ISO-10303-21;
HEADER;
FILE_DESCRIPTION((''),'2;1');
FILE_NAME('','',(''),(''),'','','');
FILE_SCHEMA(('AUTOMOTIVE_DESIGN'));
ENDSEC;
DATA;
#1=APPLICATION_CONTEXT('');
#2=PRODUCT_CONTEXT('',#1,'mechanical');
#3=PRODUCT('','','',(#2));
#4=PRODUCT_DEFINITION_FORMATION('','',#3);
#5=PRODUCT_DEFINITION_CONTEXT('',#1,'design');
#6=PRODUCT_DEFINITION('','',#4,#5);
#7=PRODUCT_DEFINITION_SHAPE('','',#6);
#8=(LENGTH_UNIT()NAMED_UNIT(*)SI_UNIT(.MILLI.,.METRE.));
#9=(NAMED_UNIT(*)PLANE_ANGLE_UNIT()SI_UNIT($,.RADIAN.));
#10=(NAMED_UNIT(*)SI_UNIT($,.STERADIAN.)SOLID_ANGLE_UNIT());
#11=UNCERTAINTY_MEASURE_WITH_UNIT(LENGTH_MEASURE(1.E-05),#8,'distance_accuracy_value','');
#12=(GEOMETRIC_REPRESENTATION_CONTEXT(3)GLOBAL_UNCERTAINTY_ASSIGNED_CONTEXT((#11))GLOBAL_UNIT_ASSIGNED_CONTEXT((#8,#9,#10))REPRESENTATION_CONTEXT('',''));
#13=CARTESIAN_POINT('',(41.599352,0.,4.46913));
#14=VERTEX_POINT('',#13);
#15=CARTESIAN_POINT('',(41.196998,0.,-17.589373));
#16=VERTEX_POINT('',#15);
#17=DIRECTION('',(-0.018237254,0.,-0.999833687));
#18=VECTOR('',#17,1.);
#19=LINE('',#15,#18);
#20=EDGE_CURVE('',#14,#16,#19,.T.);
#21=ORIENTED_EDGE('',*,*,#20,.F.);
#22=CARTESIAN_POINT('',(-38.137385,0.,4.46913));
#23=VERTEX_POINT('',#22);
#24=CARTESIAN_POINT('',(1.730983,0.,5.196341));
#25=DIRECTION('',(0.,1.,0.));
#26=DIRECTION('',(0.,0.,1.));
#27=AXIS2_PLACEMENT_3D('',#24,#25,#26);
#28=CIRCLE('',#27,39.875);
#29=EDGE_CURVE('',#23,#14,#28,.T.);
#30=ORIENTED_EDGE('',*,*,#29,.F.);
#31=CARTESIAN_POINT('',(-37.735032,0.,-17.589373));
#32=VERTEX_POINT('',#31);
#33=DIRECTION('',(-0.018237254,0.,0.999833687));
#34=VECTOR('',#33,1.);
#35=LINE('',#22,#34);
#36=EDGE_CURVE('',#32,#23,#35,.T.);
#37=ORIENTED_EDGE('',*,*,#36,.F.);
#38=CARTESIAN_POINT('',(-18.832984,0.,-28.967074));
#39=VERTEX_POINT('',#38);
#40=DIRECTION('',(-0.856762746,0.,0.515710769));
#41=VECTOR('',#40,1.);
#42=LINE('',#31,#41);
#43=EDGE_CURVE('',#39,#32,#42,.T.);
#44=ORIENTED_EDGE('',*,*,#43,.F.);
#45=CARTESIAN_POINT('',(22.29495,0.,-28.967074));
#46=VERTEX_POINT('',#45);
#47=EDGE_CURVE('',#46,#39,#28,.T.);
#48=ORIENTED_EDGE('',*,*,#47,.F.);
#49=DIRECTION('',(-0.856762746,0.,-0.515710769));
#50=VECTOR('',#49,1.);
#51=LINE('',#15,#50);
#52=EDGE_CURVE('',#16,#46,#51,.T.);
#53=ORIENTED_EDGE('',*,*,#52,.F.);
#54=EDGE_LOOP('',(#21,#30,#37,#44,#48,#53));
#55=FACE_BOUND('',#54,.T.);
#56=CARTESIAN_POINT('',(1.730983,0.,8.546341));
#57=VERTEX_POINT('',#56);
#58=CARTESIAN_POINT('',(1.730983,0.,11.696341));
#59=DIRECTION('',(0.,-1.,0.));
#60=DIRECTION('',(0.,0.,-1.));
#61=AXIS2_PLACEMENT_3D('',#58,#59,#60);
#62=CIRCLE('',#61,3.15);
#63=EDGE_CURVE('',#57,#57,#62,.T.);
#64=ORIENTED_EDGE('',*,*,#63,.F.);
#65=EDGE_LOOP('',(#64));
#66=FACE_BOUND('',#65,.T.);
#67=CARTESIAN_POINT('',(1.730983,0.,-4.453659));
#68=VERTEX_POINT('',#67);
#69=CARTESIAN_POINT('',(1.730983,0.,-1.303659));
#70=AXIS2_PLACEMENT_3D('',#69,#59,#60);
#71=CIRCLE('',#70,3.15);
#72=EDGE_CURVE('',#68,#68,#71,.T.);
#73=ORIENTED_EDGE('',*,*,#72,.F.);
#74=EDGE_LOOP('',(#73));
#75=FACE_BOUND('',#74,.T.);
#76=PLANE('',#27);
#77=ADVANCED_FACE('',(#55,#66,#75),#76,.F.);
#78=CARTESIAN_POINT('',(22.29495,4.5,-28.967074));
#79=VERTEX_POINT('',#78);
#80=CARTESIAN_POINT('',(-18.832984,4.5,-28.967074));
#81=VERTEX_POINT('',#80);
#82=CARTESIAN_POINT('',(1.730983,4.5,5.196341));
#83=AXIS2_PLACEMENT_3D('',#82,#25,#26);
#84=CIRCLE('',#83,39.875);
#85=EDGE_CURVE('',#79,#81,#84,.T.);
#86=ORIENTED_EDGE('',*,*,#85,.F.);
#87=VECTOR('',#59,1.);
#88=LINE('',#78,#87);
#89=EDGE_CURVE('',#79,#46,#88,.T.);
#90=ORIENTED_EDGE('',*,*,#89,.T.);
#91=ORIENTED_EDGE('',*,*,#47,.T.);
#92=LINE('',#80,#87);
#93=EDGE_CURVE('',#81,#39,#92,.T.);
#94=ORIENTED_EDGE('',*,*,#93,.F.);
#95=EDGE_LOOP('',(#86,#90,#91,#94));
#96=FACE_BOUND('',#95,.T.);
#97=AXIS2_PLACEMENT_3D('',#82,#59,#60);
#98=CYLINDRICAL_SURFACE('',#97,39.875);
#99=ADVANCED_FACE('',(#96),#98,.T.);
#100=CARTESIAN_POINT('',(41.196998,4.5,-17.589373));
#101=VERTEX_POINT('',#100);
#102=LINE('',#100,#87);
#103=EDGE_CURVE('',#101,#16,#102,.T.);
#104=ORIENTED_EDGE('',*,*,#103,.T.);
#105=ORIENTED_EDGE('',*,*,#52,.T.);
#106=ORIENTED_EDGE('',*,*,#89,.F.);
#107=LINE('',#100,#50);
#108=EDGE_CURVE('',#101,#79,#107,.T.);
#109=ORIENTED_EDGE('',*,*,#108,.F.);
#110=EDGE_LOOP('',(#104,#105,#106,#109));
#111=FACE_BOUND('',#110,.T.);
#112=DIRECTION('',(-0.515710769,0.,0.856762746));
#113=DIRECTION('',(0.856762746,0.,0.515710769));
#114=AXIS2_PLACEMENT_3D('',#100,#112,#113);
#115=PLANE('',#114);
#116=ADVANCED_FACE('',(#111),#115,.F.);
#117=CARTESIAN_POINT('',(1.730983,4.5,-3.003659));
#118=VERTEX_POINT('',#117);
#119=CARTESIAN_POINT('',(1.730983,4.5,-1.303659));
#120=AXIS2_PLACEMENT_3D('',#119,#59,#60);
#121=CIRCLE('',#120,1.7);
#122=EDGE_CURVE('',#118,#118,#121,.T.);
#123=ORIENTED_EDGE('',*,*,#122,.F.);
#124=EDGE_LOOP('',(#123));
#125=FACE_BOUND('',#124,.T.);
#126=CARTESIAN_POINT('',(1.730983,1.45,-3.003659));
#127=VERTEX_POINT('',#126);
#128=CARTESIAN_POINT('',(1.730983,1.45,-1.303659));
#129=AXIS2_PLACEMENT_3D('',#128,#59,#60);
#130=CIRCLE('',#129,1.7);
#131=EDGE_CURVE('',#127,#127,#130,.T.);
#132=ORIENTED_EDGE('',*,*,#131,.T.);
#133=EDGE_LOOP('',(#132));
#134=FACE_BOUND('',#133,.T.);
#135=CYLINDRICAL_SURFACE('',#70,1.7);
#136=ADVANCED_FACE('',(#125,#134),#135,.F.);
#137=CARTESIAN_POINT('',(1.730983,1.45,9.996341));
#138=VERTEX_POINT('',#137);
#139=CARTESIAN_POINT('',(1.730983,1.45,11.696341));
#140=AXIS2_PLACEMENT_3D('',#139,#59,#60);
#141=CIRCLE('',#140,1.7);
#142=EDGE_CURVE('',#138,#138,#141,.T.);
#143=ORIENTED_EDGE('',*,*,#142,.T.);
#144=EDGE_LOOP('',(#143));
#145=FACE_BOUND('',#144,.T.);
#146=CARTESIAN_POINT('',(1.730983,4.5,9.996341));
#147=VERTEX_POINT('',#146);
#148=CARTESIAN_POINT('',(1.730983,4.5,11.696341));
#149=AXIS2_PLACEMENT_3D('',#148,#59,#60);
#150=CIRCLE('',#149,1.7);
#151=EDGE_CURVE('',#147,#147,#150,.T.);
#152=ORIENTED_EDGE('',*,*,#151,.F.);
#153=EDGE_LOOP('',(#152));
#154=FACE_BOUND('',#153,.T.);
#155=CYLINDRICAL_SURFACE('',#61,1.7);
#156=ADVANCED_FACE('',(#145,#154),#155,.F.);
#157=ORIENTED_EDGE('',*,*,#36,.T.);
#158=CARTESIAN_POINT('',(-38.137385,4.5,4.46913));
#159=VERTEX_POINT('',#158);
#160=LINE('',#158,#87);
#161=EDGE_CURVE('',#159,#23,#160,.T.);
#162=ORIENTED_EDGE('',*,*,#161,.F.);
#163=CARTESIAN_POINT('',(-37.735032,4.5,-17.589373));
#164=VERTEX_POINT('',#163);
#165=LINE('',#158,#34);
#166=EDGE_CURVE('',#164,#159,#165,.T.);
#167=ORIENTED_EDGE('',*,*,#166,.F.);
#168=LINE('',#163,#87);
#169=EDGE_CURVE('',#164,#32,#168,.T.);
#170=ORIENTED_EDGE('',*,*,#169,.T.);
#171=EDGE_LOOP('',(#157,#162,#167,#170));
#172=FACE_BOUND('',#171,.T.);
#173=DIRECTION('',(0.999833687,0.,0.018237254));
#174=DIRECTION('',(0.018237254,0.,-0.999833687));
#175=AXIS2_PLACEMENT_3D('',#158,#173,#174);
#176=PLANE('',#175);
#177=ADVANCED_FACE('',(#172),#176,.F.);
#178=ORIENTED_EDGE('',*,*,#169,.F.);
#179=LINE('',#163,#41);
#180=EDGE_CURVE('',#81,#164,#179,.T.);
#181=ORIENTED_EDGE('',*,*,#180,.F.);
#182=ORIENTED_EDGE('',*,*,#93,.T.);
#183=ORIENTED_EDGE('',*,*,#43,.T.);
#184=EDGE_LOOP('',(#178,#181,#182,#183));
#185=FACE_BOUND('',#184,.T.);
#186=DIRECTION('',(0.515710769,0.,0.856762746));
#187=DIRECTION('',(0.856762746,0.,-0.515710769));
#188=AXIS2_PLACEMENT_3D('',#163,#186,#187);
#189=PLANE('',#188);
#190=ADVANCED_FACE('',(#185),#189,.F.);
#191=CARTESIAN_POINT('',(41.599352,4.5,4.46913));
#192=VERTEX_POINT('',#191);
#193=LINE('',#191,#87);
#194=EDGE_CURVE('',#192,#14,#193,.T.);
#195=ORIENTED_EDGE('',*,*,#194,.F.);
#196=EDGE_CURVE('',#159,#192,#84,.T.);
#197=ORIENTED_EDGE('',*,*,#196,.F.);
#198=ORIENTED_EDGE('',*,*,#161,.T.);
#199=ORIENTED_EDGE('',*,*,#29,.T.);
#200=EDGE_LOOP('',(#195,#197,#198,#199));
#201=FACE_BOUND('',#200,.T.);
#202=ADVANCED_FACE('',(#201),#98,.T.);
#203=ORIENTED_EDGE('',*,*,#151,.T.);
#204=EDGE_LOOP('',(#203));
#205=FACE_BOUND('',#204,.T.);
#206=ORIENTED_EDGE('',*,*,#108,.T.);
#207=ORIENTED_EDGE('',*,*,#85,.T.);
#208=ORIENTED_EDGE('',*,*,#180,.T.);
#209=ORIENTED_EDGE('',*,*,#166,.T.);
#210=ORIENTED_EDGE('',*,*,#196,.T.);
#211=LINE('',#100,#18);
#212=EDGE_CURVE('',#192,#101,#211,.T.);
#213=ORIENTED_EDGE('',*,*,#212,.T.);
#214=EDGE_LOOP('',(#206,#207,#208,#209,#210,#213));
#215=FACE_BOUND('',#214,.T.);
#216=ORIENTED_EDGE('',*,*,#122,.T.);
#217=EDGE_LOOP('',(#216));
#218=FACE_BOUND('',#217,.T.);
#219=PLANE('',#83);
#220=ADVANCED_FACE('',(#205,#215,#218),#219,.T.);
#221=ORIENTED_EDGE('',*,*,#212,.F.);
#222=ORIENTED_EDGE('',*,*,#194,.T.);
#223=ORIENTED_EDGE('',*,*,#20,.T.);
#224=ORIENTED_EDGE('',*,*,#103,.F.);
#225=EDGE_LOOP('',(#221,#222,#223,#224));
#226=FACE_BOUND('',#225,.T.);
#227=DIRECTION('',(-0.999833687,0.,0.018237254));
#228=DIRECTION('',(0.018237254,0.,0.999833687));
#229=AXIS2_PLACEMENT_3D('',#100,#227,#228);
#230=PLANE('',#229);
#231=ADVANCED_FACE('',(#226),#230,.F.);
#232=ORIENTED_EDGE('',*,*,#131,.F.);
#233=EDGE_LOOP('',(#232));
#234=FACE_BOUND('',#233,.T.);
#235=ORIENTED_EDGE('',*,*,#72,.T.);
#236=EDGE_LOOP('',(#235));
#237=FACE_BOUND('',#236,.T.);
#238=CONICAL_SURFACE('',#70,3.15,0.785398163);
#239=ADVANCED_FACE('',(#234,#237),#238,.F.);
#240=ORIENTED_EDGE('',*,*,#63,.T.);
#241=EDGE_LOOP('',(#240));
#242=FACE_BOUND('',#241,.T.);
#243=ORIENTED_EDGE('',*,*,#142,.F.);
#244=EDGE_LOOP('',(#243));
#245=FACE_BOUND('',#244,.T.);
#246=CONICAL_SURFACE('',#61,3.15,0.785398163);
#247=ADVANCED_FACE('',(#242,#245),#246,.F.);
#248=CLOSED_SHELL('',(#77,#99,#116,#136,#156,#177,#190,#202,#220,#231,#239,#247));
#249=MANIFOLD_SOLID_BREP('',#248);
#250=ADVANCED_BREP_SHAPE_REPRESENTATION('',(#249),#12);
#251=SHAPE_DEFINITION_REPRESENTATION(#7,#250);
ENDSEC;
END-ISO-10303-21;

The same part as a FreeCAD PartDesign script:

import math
import FreeCAD as App
import Part
import Sketcher
from FreeCAD import Vector

doc = App.newDocument("Part")
body = doc.addObject("PartDesign::Body", "Body")

# Sketch on XZ plane
sketch1 = doc.addObject("Sketcher::SketchObject", "Sketch")
body.addObject(sketch1)
sketch1.AttachmentSupport = (doc.XZ_Plane, [""])
sketch1.MapMode = "FlatFace"
sketch1.addGeometry([
    Part.LineSegment(Vector(-19, -29, 0), Vector(-38, -18, 0)),  # 0
    Part.LineSegment(Vector(-38, -18, 0), Vector(-38, 4, 0)),  # 1
    Part.ArcOfCircle(Part.Circle(Vector(2, 5, 0), Vector(0, 0, 1), 40), math.radians(-1), math.radians(181)),  # 2
    Part.LineSegment(Vector(42, 4, 0), Vector(41, -18, 0)),  # 3
    Part.LineSegment(Vector(41, -18, 0), Vector(22, -29, 0)),  # 4
    Part.ArcOfCircle(Part.Circle(Vector(2, 5, 0), Vector(0, 0, 1), 40), math.radians(-121), math.radians(-59)),  # 5
], False)
sketch1.addConstraint([
    Sketcher.Constraint("Coincident", 0, 2, 1, 1),
    Sketcher.Constraint("Tangent", 1, 2, 2, 2),
    Sketcher.Constraint("Tangent", 2, 1, 3, 1),
    Sketcher.Constraint("Coincident", 3, 2, 4, 1),
    Sketcher.Constraint("Tangent", 4, 2, 5, 2),
    Sketcher.Constraint("Tangent", 5, 1, 0, 1),
    Sketcher.Constraint("Coincident", 5, 3, 2, 3),
    Sketcher.Constraint("Equal", 2, 5),
    Sketcher.Constraint("Horizontal", 1, 2, 2, 1),
    Sketcher.Constraint("Horizontal", 0, 2, 3, 2),
    Sketcher.Constraint("Radius", 2, 39.875),
    Sketcher.Constraint("DistanceX", -1, 1, 3, 2, 41.196998),
    Sketcher.Constraint("DistanceY", 4, 2, 3, 2, 11.3777),
    Sketcher.Constraint("DistanceX", 4, 2, 2, 1, 19.304401),
    Sketcher.Constraint("DistanceY", -1, 1, 2, 3, 5.196341),
])
pad1 = doc.addObject("PartDesign::Pad", "Pad")
body.addObject(pad1)
pad1.Profile = sketch1
pad1.Length = 4.5
pad1.Reversed = True

# Sketch on XZ plane
sketch2 = doc.addObject("Sketcher::SketchObject", "Sketch001")
body.addObject(sketch2)
sketch2.AttachmentSupport = (doc.XZ_Plane, [""])
sketch2.MapMode = "FlatFace"
sketch2.addGeometry([
    Part.Circle(Vector(1.7, -1.3, 0), Vector(0, 0, 1), 1.7),
    Part.Circle(Vector(1.7, 11.7, 0), Vector(0, 0, 1), 1.7),
], False)
sketch2.addConstraint([
    Sketcher.Constraint("Equal", 0, 1),
    Sketcher.Constraint("Vertical", 0, 3, 1, 3),
    Sketcher.Constraint("Diameter", 0, 3.4),
    Sketcher.Constraint("DistanceY", 0, 3, 1, 3, 13.0),
    Sketcher.Constraint("DistanceY", 0, 3, -1, 1, 1.303659),
    Sketcher.Constraint("DistanceX", -1, 1, 0, 3, 1.730983),
])
doc.recompute()
hole = doc.addObject("PartDesign::Hole", "Hole")
body.addObject(hole)
hole.Profile = sketch2
hole.ThreadType = "None"
hole.Diameter = 3.4
hole.DepthType = "ThroughAll"
hole.HoleCutType = "Countersink"
hole.HoleCutDiameter = 6.3
hole.HoleCutCountersinkAngle = 90

doc.recompute()
